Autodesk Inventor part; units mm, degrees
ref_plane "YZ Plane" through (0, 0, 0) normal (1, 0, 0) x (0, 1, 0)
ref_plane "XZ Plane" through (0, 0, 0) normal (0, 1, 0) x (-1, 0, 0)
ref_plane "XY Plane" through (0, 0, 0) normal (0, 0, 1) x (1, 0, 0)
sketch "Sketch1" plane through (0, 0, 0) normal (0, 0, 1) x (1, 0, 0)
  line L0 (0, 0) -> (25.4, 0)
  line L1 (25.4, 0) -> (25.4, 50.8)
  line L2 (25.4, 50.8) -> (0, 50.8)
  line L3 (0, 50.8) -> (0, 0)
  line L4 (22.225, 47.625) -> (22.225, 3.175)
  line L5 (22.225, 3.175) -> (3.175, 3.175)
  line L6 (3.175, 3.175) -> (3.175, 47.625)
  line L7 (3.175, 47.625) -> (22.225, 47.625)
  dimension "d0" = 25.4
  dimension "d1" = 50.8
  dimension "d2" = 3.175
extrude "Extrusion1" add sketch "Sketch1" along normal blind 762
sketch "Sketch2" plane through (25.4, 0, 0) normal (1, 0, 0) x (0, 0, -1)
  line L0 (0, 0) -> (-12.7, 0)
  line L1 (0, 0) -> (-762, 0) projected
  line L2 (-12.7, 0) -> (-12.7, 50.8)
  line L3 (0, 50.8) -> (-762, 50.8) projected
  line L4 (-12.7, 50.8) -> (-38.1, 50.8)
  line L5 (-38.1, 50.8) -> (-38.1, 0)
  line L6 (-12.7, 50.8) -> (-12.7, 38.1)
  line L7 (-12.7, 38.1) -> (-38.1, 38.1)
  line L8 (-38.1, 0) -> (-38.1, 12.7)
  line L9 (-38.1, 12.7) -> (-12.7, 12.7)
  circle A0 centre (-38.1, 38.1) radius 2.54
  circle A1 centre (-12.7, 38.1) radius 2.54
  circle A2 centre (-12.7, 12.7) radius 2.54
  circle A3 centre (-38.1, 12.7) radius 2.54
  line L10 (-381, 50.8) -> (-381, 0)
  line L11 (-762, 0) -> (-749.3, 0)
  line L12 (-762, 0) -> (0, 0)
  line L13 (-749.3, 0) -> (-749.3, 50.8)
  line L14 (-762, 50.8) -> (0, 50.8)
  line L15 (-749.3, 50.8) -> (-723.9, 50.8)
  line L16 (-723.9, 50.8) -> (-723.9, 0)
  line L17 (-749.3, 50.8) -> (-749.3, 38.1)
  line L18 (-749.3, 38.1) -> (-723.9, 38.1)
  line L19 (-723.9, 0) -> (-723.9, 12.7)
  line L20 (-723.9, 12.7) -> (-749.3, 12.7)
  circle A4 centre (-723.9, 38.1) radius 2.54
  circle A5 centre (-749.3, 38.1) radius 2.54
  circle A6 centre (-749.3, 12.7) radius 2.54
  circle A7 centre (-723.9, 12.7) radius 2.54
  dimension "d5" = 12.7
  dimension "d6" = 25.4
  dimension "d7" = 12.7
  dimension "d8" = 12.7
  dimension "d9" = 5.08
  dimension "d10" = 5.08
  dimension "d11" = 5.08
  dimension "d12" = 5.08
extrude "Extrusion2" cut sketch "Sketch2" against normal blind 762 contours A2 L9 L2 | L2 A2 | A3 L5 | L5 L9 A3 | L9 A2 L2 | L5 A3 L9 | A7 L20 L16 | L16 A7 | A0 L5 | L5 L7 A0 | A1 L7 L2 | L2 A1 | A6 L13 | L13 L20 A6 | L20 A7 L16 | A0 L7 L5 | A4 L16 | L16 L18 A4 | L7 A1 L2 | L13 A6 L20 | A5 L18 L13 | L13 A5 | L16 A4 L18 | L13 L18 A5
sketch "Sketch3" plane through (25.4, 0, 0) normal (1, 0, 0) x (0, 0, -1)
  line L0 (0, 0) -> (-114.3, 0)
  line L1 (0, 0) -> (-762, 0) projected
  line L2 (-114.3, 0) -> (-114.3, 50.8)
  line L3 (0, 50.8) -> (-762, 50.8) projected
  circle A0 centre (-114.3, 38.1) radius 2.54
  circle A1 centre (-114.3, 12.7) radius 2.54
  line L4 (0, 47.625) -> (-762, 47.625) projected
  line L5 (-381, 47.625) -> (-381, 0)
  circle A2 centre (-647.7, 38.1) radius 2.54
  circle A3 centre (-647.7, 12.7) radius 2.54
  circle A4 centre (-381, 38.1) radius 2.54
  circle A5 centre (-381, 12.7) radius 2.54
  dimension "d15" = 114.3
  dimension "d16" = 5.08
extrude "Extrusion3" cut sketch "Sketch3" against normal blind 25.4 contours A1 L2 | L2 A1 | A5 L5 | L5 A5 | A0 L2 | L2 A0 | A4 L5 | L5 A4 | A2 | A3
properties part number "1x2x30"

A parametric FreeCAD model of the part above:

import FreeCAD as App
import Part
import Sketcher

V = App.Vector
Q = App.Units.Quantity

doc = App.newDocument("Part")
body = doc.addObject("PartDesign::Body", "Body")

# Sketch on XY plane
sketch1 = doc.addObject("Sketcher::SketchObject", "Sketch")
body.addObject(sketch1)
sketch1.AttachmentSupport = (doc.XY_Plane, [""])
sketch1.MapMode = "FlatFace"
sketch1.addGeometry(Part.LineSegment(V(0, 50.8, 0), V(0, 0, 0)), False)
sketch1.addGeometry(Part.LineSegment(V(0, 0, 0), V(25.4, 0, 0)), False)
sketch1.addGeometry(Part.LineSegment(V(25.4, 0, 0), V(25.4, 50.8, 0)), False)
sketch1.addGeometry(Part.LineSegment(V(25.4, 50.8, 0), V(0, 50.8, 0)), False)
sketch1.addGeometry(Part.LineSegment(V(3.175, 47.625, 0), V(22.225, 47.625, 0)), False)
sketch1.addGeometry(Part.LineSegment(V(22.225, 47.625, 0), V(22.225, 3.175, 0)), False)
sketch1.addGeometry(Part.LineSegment(V(22.225, 3.175, 0), V(3.175, 3.175, 0)), False)
sketch1.addGeometry(Part.LineSegment(V(3.175, 3.175, 0), V(3.175, 47.625, 0)), False)
sketch1.addConstraint(Sketcher.Constraint("Coincident", 0, 2, 1, 1))
sketch1.addConstraint(Sketcher.Constraint("Coincident", 1, 2, 2, 1))
sketch1.addConstraint(Sketcher.Constraint("Coincident", 2, 2, 3, 1))
sketch1.addConstraint(Sketcher.Constraint("Coincident", 3, 2, 0, 1))
sketch1.addConstraint(Sketcher.Constraint("Coincident", 4, 2, 5, 1))
sketch1.addConstraint(Sketcher.Constraint("Coincident", 5, 2, 6, 1))
sketch1.addConstraint(Sketcher.Constraint("Coincident", 6, 2, 7, 1))
sketch1.addConstraint(Sketcher.Constraint("Coincident", 7, 2, 4, 1))
sketch1.addConstraint(Sketcher.Constraint("Vertical", 0))
sketch1.addConstraint(Sketcher.Constraint("Horizontal", 1))
sketch1.addConstraint(Sketcher.Constraint("Vertical", 2))
sketch1.addConstraint(Sketcher.Constraint("Horizontal", 3))
sketch1.addConstraint(Sketcher.Constraint("Horizontal", 4))
sketch1.addConstraint(Sketcher.Constraint("Vertical", 5))
sketch1.addConstraint(Sketcher.Constraint("Horizontal", 6))
sketch1.addConstraint(Sketcher.Constraint("Vertical", 7))
sketch1.addConstraint(Sketcher.Constraint("Coincident", 0, 2, -1, 1))
sketch1.addConstraint(Sketcher.Constraint("DistanceX", 1, 1, 1, 2, Q("1 in")))
sketch1.addConstraint(Sketcher.Constraint("DistanceY", 0, 2, 0, 1, Q("2 in")))
sketch1.addConstraint(Sketcher.Constraint("DistanceY", -1, 1, 5, 2, Q("0.125 in")))
sketch1.addConstraint(Sketcher.Constraint("DistanceX", -1, 1, 6, 2, Q("0.125 in")))
sketch1.addConstraint(Sketcher.Constraint("DistanceX", 4, 2, 2, 2, Q("0.125 in")))
sketch1.addConstraint(Sketcher.Constraint("DistanceY", 4, 2, 2, 2, Q("0.125 in")))
pad1 = doc.addObject("PartDesign::Pad", "Pad")
body.addObject(pad1)
pad1.Profile = sketch1
pad1.Length = Q("30 in")

# Sketch on YZ plane
sketch2 = doc.addObject("Sketcher::SketchObject", "Sketch001")
body.addObject(sketch2)
sketch2.AttachmentSupport = (doc.YZ_Plane, [""])
sketch2.MapMode = "FlatFace"
sketch2.AttachmentOffset = App.Placement(V(0, 0, 1 * 25.4), App.Rotation())
sketch2.addGeometry(Part.Circle(V(12.7, 12.7, 0), V(0, 0, 1), 2.54), False)
sketch2.addGeometry(Part.Circle(V(12.7, 38.1, 0), V(0, 0, 1), 2.54), False)
sketch2.addGeometry(Part.Circle(V(12.7, 723.9, 0), V(0, 0, 1), 2.54), False)
sketch2.addGeometry(Part.Circle(V(38.1, 38.1, 0), V(0, 0, 1), 2.54), False)
sketch2.addGeometry(Part.Circle(V(38.1, 12.7, 0), V(0, 0, 1), 2.54), False)
sketch2.addGeometry(Part.Circle(V(12.7, 749.3, 0), V(0, 0, 1), 2.54), False)
sketch2.addGeometry(Part.Circle(V(38.1, 723.9, 0), V(0, 0, 1), 2.54), False)
sketch2.addGeometry(Part.Circle(V(38.1, 749.3, 0), V(0, 0, 1), 2.54), False)
sketch2.addConstraint(Sketcher.Constraint("Equal", 0, 1))
sketch2.addConstraint(Sketcher.Constraint("Equal", 1, 2))
sketch2.addConstraint(Sketcher.Constraint("Equal", 2, 3))
sketch2.addConstraint(Sketcher.Constraint("Equal", 3, 4))
sketch2.addConstraint(Sketcher.Constraint("Equal", 4, 5))
sketch2.addConstraint(Sketcher.Constraint("Equal", 5, 6))
sketch2.addConstraint(Sketcher.Constraint("Equal", 6, 7))
sketch2.addConstraint(Sketcher.Constraint("Horizontal", 1, 3, 3, 3))
sketch2.addConstraint(Sketcher.Constraint("Horizontal", 0, 3, 4, 3))
sketch2.addConstraint(Sketcher.Constraint("Horizontal", 2, 3, 6, 3))
sketch2.addConstraint(Sketcher.Constraint("Horizontal", 5, 3, 7, 3))
sketch2.addConstraint(Sketcher.Constraint("Vertical", 0, 3, 1, 3))
sketch2.addConstraint(Sketcher.Constraint("Vertical", 1, 3, 2, 3))
sketch2.addConstraint(Sketcher.Constraint("Vertical", 3, 3, 4, 3))
sketch2.addConstraint(Sketcher.Constraint("Vertical", 2, 3, 5, 3))
sketch2.addConstraint(Sketcher.Constraint("Vertical", 4, 3, 6, 3))
sketch2.addConstraint(Sketcher.Constraint("Vertical", 6, 3, 7, 3))
sketch2.addConstraint(Sketcher.Constraint("Diameter", 0, Q("0.2 in")))
sketch2.addConstraint(Sketcher.Constraint("DistanceY", 0, 3, 1, 3, Q("1 in")))
sketch2.addConstraint(Sketcher.Constraint("DistanceX", 1, 3, 3, 3, Q("1 in")))
sketch2.addConstraint(Sketcher.Constraint("DistanceY", 2, 3, 5, 3, Q("1 in")))
sketch2.addConstraint(Sketcher.Constraint("DistanceX", -1, 1, 0, 3, Q("0.5 in")))
sketch2.addConstraint(Sketcher.Constraint("DistanceY", -1, 1, 0, 3, Q("0.5 in")))
sketch2.addConstraint(Sketcher.Constraint("DistanceY", 1, 3, 2, 3, Q("27 in")))
pocket1 = doc.addObject("PartDesign::Pocket", "Pocket")
body.addObject(pocket1)
pocket1.Profile = sketch2
pocket1.Length = Q("30 in")

# Sketch on YZ plane
sketch3 = doc.addObject("Sketcher::SketchObject", "Sketch002")
body.addObject(sketch3)
sketch3.AttachmentSupport = (doc.YZ_Plane, [""])
sketch3.MapMode = "FlatFace"
sketch3.AttachmentOffset = App.Placement(V(0, 0, 1 * 25.4), App.Rotation())
sketch3.addGeometry(Part.Circle(V(12.7, 114.3, 0), V(0, 0, 1), 2.54), False)
sketch3.addGeometry(Part.Circle(V(12.7, 381, 0), V(0, 0, 1), 2.54), False)
sketch3.addGeometry(Part.Circle(V(38.1, 114.3, 0), V(0, 0, 1), 2.54), False)
sketch3.addGeometry(Part.Circle(V(38.1, 381, 0), V(0, 0, 1), 2.54), False)
sketch3.addGeometry(Part.Circle(V(38.1, 647.7, 0), V(0, 0, 1), 2.54), False)
sketch3.addGeometry(Part.Circle(V(12.7, 647.7, 0), V(0, 0, 1), 2.54), False)
sketch3.addConstraint(Sketcher.Constraint("Equal", 0, 1))
sketch3.addConstraint(Sketcher.Constraint("Equal", 1, 2))
sketch3.addConstraint(Sketcher.Constraint("Equal", 2, 3))
sketch3.addConstraint(Sketcher.Constraint("Equal", 3, 4))
sketch3.addConstraint(Sketcher.Constraint("Equal", 4, 5))
sketch3.addConstraint(Sketcher.Constraint("Horizontal", 0, 3, 2, 3))
sketch3.addConstraint(Sketcher.Constraint("Horizontal", 1, 3, 3, 3))
sketch3.addConstraint(Sketcher.Constraint("Horizontal", 4, 3, 5, 3))
sketch3.addConstraint(Sketcher.Constraint("Vertical", 0, 3, 1, 3))
sketch3.addConstraint(Sketcher.Constraint("Vertical", 2, 3, 3, 3))
sketch3.addConstraint(Sketcher.Constraint("Vertical", 3, 3, 4, 3))
sketch3.addConstraint(Sketcher.Constraint("Vertical", 1, 3, 5, 3))
sketch3.addConstraint(Sketcher.Constraint("Diameter", 0, Q("0.2 in")))
sketch3.addConstraint(Sketcher.Constraint("DistanceY", -1, 1, 0, 3, Q("4.5 in")))
sketch3.addConstraint(Sketcher.Constraint("DistanceY", -1, 1, 1, 3, Q("15 in")))
sketch3.addConstraint(Sketcher.Constraint("DistanceX", 0, 3, 2, 3, Q("1 in")))
sketch3.addConstraint(Sketcher.Constraint("DistanceY", 2, 3, 4, 3, Q("21 in")))
sketch3.addConstraint(Sketcher.Constraint("DistanceX", -1, 1, 0, 3, Q("0.5 in")))
pocket2 = doc.addObject("PartDesign::Pocket", "Pocket001")
body.addObject(pocket2)
pocket2.Profile = sketch3
pocket2.Length = Q("1 in")

doc.recompute()
